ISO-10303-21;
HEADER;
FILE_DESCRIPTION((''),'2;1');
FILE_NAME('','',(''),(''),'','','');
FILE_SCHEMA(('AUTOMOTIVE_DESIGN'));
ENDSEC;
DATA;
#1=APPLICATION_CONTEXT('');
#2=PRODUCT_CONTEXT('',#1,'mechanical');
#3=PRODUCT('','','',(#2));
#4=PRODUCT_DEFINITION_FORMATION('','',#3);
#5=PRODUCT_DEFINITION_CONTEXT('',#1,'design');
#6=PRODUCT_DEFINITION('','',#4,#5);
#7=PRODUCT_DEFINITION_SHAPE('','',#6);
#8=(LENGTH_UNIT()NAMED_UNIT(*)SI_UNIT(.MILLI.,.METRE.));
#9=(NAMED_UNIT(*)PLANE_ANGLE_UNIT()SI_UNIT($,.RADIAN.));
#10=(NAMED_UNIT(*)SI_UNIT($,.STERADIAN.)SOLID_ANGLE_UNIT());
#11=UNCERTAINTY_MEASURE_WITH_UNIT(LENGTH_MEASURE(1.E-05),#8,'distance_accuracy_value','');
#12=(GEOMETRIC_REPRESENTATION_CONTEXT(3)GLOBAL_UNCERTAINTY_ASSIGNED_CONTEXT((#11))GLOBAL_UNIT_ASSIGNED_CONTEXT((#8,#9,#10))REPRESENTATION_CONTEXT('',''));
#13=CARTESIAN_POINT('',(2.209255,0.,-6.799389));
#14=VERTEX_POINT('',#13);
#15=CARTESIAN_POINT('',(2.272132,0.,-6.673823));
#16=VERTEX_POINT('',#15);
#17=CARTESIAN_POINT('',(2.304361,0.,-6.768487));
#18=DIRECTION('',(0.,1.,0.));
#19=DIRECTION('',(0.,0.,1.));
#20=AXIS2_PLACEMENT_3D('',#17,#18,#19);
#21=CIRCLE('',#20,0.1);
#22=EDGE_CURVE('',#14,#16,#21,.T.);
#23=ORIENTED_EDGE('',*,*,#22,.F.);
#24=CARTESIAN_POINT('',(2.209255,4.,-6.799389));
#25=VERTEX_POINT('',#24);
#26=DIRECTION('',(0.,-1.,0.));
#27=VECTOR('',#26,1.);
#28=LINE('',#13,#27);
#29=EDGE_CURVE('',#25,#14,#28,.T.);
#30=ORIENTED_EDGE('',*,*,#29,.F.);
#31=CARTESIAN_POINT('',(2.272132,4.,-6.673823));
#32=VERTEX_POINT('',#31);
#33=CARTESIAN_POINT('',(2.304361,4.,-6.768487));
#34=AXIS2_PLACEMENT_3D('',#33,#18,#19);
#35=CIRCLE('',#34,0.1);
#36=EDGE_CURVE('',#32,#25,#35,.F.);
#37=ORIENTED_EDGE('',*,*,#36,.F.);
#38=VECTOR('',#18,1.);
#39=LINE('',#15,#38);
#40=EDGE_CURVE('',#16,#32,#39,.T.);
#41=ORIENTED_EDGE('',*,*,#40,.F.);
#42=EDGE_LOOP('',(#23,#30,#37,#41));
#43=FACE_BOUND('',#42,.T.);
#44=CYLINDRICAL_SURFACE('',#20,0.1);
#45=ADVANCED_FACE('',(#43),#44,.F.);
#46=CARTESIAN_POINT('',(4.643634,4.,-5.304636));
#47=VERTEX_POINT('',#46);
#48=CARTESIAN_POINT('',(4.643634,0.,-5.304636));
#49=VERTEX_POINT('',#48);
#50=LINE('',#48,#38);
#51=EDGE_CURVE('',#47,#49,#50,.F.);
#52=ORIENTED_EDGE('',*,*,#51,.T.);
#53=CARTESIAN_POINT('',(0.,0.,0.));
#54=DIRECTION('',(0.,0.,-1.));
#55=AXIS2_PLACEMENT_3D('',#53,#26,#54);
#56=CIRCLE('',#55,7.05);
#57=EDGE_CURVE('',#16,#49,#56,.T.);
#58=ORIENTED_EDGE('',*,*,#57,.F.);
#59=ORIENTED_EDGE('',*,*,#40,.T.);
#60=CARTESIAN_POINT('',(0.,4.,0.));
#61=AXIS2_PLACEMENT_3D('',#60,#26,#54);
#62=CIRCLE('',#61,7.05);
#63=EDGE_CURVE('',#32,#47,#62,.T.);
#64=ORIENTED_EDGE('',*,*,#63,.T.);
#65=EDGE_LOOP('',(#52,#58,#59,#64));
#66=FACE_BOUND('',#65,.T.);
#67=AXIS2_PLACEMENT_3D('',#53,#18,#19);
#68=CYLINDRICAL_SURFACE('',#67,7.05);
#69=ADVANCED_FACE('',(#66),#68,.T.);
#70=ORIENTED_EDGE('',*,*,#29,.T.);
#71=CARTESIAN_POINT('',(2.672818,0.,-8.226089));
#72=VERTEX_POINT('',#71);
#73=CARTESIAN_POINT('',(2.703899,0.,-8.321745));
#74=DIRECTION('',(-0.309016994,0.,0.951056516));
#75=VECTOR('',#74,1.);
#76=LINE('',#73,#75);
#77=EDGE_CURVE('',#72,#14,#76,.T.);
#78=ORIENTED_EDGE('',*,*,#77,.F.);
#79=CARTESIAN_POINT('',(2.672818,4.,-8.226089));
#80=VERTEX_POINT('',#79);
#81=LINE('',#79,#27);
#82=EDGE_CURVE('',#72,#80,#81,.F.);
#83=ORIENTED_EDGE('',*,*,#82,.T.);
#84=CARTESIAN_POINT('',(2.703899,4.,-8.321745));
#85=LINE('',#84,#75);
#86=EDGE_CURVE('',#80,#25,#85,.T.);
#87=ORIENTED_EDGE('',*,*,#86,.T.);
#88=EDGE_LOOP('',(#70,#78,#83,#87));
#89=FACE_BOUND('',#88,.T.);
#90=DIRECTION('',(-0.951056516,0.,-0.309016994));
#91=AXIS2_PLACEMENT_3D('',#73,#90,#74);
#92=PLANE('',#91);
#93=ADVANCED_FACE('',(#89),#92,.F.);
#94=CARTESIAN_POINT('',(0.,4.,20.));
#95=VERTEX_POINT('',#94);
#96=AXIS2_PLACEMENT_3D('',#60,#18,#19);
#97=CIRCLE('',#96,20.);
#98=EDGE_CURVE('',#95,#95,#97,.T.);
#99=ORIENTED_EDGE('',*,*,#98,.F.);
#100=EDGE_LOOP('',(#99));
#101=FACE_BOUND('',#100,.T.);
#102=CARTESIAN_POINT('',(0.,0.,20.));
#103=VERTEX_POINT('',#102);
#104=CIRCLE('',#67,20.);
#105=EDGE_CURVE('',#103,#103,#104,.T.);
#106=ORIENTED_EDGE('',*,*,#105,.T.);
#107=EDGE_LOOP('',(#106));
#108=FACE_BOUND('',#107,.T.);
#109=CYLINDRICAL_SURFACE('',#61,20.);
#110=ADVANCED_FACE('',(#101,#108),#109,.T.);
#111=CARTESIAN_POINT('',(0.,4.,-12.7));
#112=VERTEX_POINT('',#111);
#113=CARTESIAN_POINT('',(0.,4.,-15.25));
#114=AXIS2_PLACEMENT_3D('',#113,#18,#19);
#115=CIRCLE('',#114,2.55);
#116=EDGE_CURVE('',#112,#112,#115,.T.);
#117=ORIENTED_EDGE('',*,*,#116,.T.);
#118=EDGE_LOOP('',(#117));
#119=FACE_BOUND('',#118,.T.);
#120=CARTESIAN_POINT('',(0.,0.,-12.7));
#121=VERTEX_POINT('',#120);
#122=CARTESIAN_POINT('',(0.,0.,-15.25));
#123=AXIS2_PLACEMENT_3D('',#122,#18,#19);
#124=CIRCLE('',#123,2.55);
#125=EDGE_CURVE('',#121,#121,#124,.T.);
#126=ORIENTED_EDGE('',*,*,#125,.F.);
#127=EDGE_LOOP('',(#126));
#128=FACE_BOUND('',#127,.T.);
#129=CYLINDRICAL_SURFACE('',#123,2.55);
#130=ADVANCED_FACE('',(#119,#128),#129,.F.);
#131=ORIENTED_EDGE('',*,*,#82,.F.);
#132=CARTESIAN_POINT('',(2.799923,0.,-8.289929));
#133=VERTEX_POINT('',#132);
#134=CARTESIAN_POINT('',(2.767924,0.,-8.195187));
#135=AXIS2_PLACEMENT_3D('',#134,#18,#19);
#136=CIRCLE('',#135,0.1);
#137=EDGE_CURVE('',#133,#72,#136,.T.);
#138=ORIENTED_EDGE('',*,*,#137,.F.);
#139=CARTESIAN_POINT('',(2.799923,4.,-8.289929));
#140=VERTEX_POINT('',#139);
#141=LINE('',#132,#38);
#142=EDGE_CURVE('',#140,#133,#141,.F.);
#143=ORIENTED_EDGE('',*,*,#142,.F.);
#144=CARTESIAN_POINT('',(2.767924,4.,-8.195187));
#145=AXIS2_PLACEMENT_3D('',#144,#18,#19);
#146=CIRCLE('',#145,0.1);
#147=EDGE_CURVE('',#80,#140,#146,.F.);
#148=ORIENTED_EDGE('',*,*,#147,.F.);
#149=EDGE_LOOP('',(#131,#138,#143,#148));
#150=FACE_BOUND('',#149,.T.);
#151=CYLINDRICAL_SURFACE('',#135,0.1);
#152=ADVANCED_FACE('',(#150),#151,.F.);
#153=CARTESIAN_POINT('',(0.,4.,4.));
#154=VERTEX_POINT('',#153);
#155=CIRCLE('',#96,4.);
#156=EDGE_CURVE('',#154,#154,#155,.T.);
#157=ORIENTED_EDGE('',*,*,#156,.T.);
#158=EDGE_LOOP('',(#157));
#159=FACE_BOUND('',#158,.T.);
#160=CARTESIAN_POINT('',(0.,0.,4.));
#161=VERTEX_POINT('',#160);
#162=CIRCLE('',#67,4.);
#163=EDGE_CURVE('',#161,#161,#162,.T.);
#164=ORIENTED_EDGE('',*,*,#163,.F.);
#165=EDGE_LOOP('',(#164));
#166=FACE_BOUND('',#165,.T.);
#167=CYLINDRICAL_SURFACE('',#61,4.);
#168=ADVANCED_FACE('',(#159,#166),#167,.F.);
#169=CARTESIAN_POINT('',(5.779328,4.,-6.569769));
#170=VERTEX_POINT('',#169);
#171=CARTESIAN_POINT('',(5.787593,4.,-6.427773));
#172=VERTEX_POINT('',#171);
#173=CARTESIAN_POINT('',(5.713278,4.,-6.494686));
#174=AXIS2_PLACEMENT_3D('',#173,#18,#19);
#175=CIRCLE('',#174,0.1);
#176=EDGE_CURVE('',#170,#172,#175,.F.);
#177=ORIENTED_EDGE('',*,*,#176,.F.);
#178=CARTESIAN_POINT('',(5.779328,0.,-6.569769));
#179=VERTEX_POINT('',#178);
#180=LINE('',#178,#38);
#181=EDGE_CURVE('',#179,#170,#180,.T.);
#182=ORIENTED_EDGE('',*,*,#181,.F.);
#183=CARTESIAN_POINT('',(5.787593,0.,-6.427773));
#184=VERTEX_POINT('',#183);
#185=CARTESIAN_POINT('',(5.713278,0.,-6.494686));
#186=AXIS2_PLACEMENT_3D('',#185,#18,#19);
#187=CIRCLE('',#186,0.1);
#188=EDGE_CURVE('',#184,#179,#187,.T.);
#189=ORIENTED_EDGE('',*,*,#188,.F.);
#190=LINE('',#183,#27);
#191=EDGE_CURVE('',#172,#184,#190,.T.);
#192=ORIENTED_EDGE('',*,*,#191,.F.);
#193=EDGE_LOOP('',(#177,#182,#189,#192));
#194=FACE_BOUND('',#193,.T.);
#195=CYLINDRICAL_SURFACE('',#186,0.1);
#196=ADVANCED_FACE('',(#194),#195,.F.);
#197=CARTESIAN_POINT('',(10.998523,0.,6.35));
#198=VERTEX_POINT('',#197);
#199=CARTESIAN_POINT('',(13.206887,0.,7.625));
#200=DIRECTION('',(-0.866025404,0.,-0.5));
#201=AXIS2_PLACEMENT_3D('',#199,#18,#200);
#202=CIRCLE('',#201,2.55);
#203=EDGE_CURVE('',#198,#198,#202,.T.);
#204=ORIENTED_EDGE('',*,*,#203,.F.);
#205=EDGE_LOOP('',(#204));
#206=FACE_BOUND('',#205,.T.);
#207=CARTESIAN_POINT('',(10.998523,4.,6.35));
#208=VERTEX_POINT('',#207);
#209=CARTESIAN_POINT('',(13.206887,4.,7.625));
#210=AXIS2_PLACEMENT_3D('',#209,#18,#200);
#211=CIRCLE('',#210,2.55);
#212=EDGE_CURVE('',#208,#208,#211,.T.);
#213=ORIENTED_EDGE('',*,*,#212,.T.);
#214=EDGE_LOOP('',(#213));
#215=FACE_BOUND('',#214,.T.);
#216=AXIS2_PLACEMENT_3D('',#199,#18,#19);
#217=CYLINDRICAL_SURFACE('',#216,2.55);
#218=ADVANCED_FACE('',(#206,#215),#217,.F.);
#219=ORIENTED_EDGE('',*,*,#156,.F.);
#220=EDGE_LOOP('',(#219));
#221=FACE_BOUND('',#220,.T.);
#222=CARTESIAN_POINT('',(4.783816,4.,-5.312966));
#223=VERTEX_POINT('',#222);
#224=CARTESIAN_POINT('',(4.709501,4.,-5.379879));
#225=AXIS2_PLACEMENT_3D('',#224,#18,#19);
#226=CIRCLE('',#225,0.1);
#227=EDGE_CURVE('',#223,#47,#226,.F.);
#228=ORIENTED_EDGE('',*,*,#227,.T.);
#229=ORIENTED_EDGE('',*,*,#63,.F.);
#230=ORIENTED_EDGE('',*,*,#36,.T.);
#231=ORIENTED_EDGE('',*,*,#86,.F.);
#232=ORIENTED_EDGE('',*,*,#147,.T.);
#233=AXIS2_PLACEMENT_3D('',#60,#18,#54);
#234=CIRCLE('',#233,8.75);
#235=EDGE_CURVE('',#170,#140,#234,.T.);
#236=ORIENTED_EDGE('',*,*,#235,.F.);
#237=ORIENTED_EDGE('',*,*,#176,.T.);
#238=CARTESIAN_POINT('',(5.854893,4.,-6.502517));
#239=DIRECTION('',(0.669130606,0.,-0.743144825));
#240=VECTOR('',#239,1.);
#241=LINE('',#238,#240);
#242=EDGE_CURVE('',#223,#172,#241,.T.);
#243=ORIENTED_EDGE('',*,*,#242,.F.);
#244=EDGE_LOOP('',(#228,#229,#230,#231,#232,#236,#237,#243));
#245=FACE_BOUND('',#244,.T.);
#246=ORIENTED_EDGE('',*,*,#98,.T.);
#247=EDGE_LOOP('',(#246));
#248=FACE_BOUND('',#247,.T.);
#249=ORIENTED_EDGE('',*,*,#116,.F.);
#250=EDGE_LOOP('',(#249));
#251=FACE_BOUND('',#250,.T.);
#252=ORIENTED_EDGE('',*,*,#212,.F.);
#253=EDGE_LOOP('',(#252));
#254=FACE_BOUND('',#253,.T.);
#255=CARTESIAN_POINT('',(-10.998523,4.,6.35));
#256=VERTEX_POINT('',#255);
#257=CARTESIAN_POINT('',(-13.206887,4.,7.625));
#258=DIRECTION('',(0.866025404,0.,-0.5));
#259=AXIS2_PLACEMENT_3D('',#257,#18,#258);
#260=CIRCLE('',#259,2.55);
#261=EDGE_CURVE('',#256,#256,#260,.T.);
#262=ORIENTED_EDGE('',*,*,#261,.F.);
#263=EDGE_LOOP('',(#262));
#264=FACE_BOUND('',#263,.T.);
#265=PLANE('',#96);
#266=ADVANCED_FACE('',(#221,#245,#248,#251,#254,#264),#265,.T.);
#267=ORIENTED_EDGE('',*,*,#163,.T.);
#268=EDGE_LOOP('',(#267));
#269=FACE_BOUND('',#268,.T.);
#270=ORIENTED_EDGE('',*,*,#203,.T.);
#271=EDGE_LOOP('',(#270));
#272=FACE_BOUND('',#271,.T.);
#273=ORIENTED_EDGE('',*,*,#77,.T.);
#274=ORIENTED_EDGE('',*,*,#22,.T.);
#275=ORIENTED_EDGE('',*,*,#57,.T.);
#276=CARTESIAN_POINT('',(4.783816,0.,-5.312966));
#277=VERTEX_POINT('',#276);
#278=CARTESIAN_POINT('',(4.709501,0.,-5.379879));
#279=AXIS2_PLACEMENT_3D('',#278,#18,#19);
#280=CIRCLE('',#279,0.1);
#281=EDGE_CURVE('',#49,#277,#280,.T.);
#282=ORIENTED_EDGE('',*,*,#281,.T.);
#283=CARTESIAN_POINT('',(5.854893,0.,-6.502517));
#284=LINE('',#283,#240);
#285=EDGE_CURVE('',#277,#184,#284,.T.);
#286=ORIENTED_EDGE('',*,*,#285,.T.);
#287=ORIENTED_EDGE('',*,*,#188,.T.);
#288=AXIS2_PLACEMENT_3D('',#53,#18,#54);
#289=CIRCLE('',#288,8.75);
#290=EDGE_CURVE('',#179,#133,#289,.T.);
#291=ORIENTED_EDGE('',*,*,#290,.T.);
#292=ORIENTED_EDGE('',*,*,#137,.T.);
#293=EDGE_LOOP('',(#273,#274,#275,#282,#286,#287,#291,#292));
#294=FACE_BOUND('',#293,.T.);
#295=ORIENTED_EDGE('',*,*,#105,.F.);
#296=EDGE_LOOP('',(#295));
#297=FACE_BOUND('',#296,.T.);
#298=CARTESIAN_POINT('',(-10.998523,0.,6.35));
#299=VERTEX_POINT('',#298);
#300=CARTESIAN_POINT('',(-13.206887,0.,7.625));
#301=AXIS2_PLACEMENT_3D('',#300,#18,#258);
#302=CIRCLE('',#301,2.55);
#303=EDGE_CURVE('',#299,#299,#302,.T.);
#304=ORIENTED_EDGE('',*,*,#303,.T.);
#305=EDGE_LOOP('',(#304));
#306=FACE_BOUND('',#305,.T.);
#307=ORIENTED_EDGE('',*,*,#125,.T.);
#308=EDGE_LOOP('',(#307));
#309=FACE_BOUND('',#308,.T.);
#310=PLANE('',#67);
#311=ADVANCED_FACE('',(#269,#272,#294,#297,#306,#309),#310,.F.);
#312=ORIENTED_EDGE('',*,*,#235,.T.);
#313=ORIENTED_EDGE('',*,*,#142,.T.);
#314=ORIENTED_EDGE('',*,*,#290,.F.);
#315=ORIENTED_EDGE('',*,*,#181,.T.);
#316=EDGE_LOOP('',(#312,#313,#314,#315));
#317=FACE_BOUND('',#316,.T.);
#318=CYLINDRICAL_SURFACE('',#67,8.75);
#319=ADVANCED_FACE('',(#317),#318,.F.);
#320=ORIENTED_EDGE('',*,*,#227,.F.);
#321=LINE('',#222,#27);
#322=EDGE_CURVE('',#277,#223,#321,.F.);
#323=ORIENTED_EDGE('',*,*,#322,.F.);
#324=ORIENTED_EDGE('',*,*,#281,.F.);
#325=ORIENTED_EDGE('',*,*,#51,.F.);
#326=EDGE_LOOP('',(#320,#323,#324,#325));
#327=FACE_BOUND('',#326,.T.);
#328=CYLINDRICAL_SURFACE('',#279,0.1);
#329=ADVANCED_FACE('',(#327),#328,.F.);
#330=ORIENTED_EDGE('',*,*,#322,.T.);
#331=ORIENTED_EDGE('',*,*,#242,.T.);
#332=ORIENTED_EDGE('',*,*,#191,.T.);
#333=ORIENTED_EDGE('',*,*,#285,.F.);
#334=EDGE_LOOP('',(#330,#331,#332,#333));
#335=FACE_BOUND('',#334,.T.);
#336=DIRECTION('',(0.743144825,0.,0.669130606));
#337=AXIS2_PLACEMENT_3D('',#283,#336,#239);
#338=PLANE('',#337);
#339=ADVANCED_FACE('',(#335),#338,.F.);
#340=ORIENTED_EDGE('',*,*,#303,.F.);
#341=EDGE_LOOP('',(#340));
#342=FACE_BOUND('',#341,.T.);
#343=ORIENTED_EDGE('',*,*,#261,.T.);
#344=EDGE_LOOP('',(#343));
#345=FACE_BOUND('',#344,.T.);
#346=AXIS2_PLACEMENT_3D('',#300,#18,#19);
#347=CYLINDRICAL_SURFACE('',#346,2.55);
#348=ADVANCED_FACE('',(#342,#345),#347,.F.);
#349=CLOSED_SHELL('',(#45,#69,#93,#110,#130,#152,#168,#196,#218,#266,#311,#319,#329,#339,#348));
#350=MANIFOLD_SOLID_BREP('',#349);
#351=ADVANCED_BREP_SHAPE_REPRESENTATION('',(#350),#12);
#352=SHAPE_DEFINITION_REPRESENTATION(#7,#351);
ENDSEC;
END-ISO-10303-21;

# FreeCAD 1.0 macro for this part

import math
import FreeCAD as App
import Part
import Sketcher
from FreeCAD import Vector
Q = App.Units.Quantity


def edges_at(feature, points):
    """Names of the edges that pass closest to the given points."""
    edges = feature.Shape.Edges
    near = lambda p: min(range(len(edges)), key=lambda i: edges[i].distToShape(Part.Vertex(*p))[0])
    return sorted({f"Edge{near(p) + 1}" for p in points})

doc = App.newDocument("Part")
body = doc.addObject("PartDesign::Body", "Body")

sketch1 = body.newObject("Sketcher::SketchObject", "Sketch")
sketch1.AttachmentSupport = (doc.getObject("XZ_Plane"), [""])
sketch1.MapMode = "FlatFace"
sketch1.addGeometry(Part.Circle(Vector(0, 0, 0), Vector(0, 0, 1), 20), False)
sketch1.addGeometry(Part.Circle(Vector(0, 0, 0), Vector(0, 0, 1), 4), False)
sketch1.addConstraint(Sketcher.Constraint("Coincident", 0, 3, -1, 1))
sketch1.addConstraint(Sketcher.Constraint("Coincident", 1, 3, -1, 1))
sketch1.addConstraint(Sketcher.Constraint("Diameter", 0, 40.0))
sketch1.addConstraint(Sketcher.Constraint("Diameter", 1, 8.0))
pad1 = body.newObject("PartDesign::Pad", "Pad")
pad1.Profile = sketch1
pad1.Length = 4
pad1.Reversed = True

sketch2 = body.newObject("Sketcher::SketchObject", "Sketch001")
sketch2.AttachmentSupport = (doc.getObject("XZ_Plane"), [""])
sketch2.MapMode = "FlatFace"
sketch2.AttachmentOffset = App.Placement(Vector(0, 0, -4), App.Rotation())
sketch2.addGeometry(Part.Circle(Vector(0, -15.2, 0), Vector(0, 0, 1), 2.5), False)
sketch2.addConstraint(Sketcher.Constraint("PointOnObject", 0, 3, -2))
sketch2.addConstraint(Sketcher.Constraint("Diameter", 0, 5.1))
sketch2.addConstraint(Sketcher.Constraint("DistanceY", 0, 3, -1, 1, 15.25))
pocket1 = body.newObject("PartDesign::Pocket", "Pocket")
pocket1.Profile = sketch2
pocket1.Type = "ThroughAll"
pocket1.Reversed = True
doc.recompute()

polarpattern = body.newObject("PartDesign::PolarPattern", "PolarPattern")
polarpattern.Originals = [pocket1]
polarpattern.Axis = (doc.getObject("Y_Axis"), [""])
polarpattern.Angle = 360
polarpattern.Occurrences = 3
body.Tip = polarpattern

sketch3 = body.newObject("Sketcher::SketchObject", "Sketch002")
sketch3.AttachmentSupport = (doc.getObject("XZ_Plane"), [""])
sketch3.MapMode = "FlatFace"
sketch3.AttachmentOffset = App.Placement(Vector(0, 0, -4), App.Rotation())
sketch3.addGeometry(Part.LineSegment(Vector(2.7, -8.3, 0), Vector(2.2, -6.7, 0)), False)
sketch3.addGeometry(Part.ArcOfCircle(Part.Circle(Vector(0, 0, 0), Vector(0, 0, 1), 7), math.radians(-72), math.radians(-48)), False)
sketch3.addGeometry(Part.LineSegment(Vector(4.7, -5.2, 0), Vector(5.9, -6.5, 0)), False)
sketch3.addGeometry(Part.ArcOfCircle(Part.Circle(Vector(0, 0, 0), Vector(0, 0, 1), 8.8), math.radians(-72), math.radians(-48)), False)
sketch3.addConstraint(Sketcher.Constraint("Coincident", 0, 2, 1, 1))
sketch3.addConstraint(Sketcher.Constraint("Coincident", 1, 2, 2, 1))
sketch3.addConstraint(Sketcher.Constraint("Coincident", 2, 2, 3, 2))
sketch3.addConstraint(Sketcher.Constraint("Coincident", 3, 1, 0, 1))
sketch3.addConstraint(Sketcher.Constraint("Coincident", 1, 3, -1, 1))
sketch3.addConstraint(Sketcher.Constraint("Coincident", 3, 3, -1, 1))
sketch3.addConstraint(Sketcher.Constraint("Angle", 0, Q("108 deg")))
sketch3.addConstraint(Sketcher.Constraint("Angle", 2, Q("-48 deg")))
sketch3.addConstraint(Sketcher.Constraint("Radius", 1, 7.05))
sketch3.addConstraint(Sketcher.Constraint("Radius", 3, 8.75))
sketch3.addConstraint(Sketcher.Constraint("DistanceX", -1, 1, 3, 1, 2.703899))
sketch3.addConstraint(Sketcher.Constraint("DistanceX", 0, 2, 1, 2, 2.538801))
pocket2 = body.newObject("PartDesign::Pocket", "Pocket001")
pocket2.Profile = sketch3
pocket2.Type = "ThroughAll"
pocket2.Reversed = True
doc.recompute()

fillet = body.newObject("PartDesign::Fillet", "Fillet")
fillet.Base = (pocket2, edges_at(pocket2, [
    (2.704, 2, -8.322),
    (5.855, 2, -6.503),
    (4.717, 2, -5.239),
    (2.179, 2, -6.705),
]))
fillet.Radius = 0.1

doc.recompute()
